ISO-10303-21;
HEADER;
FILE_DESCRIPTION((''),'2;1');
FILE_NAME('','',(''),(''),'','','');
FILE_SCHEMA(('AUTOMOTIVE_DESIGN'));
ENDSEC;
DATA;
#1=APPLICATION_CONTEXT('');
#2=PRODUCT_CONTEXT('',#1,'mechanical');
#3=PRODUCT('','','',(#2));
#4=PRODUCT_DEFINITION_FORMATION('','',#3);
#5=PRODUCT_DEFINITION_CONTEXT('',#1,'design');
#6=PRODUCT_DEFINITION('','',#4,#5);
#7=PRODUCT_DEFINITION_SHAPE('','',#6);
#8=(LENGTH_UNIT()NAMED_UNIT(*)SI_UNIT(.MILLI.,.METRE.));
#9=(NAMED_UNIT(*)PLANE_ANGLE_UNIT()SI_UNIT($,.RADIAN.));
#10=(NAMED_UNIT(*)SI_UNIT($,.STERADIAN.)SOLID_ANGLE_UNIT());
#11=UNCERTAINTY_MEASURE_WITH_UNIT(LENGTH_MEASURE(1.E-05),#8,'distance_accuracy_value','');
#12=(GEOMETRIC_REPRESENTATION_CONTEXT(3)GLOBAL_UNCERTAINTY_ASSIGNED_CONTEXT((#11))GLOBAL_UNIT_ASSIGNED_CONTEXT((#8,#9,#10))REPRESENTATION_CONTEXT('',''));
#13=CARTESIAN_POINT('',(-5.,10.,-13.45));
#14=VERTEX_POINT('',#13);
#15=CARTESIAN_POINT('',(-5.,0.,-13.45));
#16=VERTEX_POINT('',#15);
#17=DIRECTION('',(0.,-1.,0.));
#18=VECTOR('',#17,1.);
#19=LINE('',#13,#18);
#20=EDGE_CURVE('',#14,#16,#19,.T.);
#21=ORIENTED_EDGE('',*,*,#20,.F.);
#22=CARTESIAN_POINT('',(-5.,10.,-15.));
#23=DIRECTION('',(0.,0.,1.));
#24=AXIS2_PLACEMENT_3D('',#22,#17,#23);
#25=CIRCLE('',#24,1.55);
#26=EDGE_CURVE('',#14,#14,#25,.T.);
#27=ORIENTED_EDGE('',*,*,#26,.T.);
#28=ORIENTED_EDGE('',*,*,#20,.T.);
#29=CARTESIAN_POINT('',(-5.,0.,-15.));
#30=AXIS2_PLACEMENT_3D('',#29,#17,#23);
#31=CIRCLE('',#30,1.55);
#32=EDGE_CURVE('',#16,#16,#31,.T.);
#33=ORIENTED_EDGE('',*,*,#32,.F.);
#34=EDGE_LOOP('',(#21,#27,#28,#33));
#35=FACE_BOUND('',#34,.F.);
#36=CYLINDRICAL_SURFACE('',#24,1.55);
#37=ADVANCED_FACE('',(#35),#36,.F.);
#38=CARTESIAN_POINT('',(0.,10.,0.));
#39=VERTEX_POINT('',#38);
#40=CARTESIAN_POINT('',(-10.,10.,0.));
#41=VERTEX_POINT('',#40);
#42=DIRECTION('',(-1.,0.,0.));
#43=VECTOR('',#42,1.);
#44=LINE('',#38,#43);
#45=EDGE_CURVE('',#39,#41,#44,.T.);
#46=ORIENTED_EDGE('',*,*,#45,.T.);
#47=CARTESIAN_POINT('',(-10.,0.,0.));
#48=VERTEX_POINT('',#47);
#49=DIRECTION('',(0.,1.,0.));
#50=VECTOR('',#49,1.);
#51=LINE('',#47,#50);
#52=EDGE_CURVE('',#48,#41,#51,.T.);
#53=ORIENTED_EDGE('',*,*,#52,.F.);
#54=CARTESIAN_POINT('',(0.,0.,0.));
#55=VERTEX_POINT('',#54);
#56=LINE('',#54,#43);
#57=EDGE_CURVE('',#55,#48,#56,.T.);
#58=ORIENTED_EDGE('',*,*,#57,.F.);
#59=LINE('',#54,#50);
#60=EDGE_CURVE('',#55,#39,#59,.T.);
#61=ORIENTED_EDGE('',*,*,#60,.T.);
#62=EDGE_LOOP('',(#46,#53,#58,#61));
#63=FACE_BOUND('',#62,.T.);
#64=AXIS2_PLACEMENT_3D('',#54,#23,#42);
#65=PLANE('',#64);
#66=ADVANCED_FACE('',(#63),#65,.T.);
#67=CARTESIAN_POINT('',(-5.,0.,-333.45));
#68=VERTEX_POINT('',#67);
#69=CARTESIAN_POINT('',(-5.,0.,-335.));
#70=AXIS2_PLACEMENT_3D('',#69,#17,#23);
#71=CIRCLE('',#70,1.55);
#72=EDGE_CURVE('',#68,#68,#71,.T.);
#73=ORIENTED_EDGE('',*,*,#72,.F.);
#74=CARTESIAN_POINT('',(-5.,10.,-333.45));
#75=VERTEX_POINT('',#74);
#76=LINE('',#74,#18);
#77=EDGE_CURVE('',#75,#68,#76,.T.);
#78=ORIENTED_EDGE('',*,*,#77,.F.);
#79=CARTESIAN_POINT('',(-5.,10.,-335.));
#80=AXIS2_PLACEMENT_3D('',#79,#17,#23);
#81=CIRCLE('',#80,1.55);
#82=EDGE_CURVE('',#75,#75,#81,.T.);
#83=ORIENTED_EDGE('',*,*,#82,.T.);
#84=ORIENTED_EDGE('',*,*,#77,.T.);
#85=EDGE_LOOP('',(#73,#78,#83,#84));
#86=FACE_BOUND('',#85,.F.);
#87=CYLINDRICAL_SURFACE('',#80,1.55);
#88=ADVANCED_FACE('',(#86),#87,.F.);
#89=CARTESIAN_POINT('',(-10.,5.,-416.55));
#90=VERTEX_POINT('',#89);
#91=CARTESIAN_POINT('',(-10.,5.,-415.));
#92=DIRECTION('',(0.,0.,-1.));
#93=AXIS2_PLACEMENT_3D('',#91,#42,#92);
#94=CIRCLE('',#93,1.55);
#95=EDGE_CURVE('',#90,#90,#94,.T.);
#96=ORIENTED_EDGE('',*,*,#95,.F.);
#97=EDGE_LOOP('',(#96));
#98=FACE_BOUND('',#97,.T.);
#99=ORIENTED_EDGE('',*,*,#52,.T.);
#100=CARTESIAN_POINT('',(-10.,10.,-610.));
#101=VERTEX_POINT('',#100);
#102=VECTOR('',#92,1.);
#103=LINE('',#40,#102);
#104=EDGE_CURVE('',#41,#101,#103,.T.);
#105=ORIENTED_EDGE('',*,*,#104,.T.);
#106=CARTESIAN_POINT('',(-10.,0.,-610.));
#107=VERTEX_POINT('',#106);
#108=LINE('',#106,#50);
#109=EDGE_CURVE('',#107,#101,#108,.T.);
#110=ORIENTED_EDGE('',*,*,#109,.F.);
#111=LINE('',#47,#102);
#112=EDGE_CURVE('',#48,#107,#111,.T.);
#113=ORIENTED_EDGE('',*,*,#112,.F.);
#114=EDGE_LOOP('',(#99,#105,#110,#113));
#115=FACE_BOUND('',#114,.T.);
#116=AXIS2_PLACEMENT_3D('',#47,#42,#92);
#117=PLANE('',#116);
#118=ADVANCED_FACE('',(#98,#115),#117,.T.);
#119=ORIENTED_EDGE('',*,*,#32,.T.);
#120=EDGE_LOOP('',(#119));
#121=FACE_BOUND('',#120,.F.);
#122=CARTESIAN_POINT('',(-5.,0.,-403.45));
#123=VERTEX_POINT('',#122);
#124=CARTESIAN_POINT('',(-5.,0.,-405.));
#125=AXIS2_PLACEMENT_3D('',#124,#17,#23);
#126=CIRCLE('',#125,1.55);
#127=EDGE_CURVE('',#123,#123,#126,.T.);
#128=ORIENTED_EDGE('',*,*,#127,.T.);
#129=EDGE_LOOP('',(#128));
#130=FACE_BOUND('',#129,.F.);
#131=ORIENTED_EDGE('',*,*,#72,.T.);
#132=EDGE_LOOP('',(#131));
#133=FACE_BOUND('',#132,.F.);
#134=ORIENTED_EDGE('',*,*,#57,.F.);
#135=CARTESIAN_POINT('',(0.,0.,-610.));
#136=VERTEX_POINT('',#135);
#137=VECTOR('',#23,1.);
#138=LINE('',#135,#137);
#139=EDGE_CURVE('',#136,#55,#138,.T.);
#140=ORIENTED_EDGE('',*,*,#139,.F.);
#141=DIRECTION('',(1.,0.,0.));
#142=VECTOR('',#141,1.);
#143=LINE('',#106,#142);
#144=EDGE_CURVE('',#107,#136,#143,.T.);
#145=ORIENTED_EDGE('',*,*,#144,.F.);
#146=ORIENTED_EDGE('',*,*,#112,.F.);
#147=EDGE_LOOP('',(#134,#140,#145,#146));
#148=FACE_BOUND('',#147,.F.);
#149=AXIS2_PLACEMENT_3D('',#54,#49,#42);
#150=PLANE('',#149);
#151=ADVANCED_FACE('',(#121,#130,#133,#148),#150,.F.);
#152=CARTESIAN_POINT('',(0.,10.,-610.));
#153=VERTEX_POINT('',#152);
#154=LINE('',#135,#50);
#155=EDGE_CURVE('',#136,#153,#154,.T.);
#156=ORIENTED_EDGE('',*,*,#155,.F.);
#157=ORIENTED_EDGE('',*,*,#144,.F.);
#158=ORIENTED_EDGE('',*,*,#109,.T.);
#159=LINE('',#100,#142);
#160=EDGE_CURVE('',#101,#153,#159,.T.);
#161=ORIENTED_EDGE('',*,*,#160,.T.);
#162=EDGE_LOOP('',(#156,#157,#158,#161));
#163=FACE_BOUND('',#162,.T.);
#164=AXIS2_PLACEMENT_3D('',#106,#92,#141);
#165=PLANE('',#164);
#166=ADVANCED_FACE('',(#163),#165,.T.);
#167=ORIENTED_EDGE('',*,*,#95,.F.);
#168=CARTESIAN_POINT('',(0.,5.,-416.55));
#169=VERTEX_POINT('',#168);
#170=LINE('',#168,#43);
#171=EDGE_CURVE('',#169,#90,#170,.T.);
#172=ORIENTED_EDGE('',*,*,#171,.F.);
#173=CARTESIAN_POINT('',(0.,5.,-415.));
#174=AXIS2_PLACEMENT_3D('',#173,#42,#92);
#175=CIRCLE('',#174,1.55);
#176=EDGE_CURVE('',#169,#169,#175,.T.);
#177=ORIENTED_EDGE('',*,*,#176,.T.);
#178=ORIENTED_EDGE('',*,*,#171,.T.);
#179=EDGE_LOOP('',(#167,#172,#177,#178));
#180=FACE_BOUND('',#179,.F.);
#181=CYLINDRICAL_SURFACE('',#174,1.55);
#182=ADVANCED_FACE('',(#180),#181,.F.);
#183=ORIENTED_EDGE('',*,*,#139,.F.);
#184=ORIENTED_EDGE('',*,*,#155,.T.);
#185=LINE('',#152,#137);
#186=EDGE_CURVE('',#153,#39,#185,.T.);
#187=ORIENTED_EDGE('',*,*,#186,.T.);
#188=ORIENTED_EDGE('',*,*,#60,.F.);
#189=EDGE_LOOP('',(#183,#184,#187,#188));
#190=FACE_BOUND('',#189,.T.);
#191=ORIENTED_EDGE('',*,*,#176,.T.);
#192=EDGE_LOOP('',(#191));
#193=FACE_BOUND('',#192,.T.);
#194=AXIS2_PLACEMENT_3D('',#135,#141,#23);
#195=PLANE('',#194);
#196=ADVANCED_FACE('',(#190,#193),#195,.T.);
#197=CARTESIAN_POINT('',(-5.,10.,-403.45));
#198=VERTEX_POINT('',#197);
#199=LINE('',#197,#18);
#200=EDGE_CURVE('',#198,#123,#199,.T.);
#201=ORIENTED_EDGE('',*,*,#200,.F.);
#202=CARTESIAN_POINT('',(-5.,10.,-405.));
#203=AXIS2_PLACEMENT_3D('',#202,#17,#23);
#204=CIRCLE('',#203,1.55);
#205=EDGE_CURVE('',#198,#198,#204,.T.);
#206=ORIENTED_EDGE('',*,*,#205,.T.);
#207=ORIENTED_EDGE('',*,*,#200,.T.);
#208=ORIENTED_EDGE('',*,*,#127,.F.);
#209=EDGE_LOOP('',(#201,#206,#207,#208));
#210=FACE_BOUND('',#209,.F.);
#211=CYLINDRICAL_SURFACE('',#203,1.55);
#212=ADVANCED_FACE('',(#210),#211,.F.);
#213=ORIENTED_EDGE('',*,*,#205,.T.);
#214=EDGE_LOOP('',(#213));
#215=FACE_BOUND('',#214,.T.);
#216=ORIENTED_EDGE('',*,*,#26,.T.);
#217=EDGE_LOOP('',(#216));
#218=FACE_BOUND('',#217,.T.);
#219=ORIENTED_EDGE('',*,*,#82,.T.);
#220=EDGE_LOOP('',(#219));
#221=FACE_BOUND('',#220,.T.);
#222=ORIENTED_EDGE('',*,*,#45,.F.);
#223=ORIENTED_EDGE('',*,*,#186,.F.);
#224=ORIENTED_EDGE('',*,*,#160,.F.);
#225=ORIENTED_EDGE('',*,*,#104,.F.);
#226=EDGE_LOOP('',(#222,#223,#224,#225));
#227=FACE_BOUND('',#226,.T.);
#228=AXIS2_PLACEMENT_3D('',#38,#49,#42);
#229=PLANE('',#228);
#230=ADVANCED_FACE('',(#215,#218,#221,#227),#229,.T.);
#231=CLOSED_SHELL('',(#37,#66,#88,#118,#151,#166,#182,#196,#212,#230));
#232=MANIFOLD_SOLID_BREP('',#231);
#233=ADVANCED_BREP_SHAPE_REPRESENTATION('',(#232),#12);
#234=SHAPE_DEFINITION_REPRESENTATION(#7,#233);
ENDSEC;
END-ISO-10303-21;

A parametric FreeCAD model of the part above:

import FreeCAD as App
import Part
import Sketcher

V = App.Vector


def add_polygon(sketch, points):
    """Adds a closed chain of lines whose ends are joined by coincident constraints."""
    first, n = sketch.GeometryCount, len(points)
    for a, b in zip(points, points[1:] + points[:1]):
        sketch.addGeometry(Part.LineSegment(App.Vector(*a, 0), App.Vector(*b, 0)), False)
    for i in range(n):
        sketch.addConstraint(Sketcher.Constraint("Coincident", first + i, 2, first + (i + 1) % n, 1))

doc = App.newDocument("Part")
params = doc.addObject("Spreadsheet::Sheet", "Params")
for row, (alias, value) in enumerate([
    ("sketch1_width", "10 mm"),
    ("sketch1_height", "610 mm"),
    ("pad1_length", "10 mm"),
    ("sketch2_diameter", "3.1 mm"),
    ("hole_diameter", "3.1 mm"),
    ("sketch3_diameter", "3.1 mm"),
    ("hole2_diameter", "3.1 mm"),
    ("sketch4_diameter", "3.1 mm"),
    ("hole3_diameter", "3.1 mm"),
], start=1):
    params.set(f"A{row}", alias)
    params.set(f"B{row}", "=" + value)
    params.setAlias(f"B{row}", alias)

body = doc.addObject("PartDesign::Body", "Body")

# Sketch on XZ plane
sketch1 = doc.addObject("Sketcher::SketchObject", "Sketch")
body.addObject(sketch1)
sketch1.AttachmentSupport = (doc.XZ_Plane, [""])
sketch1.MapMode = "FlatFace"
add_polygon(sketch1, [(-10, 0), (0, 0), (0, -610), (-10, -610)])  # lines 0-3
sketch1.addConstraint(Sketcher.Constraint("Horizontal", 0))
sketch1.addConstraint(Sketcher.Constraint("Vertical", 1))
sketch1.addConstraint(Sketcher.Constraint("Horizontal", 2))
sketch1.addConstraint(Sketcher.Constraint("Vertical", 3))
sketch1.addConstraint(Sketcher.Constraint("Coincident", 0, 2, -1, 1))
sketch1.addConstraint(Sketcher.Constraint("DistanceX", 0, 1, 0, 2, 10.0))
sketch1.addConstraint(Sketcher.Constraint("DistanceY", 1, 2, 1, 1, 610.0))
sketch1.setExpression("Constraints[9]", "Params.sketch1_width")
sketch1.setExpression("Constraints[10]", "Params.sketch1_height")
pad1 = doc.addObject("PartDesign::Pad", "Pad")
body.addObject(pad1)
pad1.Profile = sketch1
pad1.setExpression("Length", "Params.pad1_length")
pad1.Reversed = True

# Sketch on XZ plane
sketch2 = doc.addObject("Sketcher::SketchObject", "Sketch001")
body.addObject(sketch2)
sketch2.AttachmentSupport = (doc.XZ_Plane, [""])
sketch2.MapMode = "FlatFace"
sketch2.AttachmentOffset = App.Placement(V(0, 0, -10), App.Rotation())
sketch2.addGeometry(Part.Circle(V(-5, -405, 0), V(0, 0, 1), 1.55), False)
sketch2.addConstraint(Sketcher.Constraint("Diameter", 0, 3.1))
sketch2.addConstraint(Sketcher.Constraint("DistanceX", 0, 3, -1, 1, 5.0))
sketch2.addConstraint(Sketcher.Constraint("DistanceY", 0, 3, -1, 1, 405.0))
sketch2.setExpression("Constraints[0]", "Params.sketch2_diameter")
doc.recompute()
hole = doc.addObject("PartDesign::Hole", "Hole")
body.addObject(hole)
hole.Profile = sketch2
hole.ThreadType = "None"
hole.setExpression("Diameter", "Params.hole_diameter")
hole.DepthType = "ThroughAll"
hole.Reversed = True

# Sketch on YZ plane
sketch3 = doc.addObject("Sketcher::SketchObject", "Sketch002")
body.addObject(sketch3)
sketch3.AttachmentSupport = (doc.YZ_Plane, [""])
sketch3.MapMode = "FlatFace"
sketch3.addGeometry(Part.Circle(V(5, -415, 0), V(0, 0, 1), 1.55), False)
sketch3.addConstraint(Sketcher.Constraint("Diameter", 0, 3.1))
sketch3.addConstraint(Sketcher.Constraint("DistanceX", -1, 1, 0, 3, 5.0))
sketch3.addConstraint(Sketcher.Constraint("DistanceY", 0, 3, -1, 1, 415.0))
sketch3.setExpression("Constraints[0]", "Params.sketch3_diameter")
doc.recompute()
hole2 = doc.addObject("PartDesign::Hole", "Hole001")
body.addObject(hole2)
hole2.Profile = sketch3
hole2.ThreadType = "None"
hole2.setExpression("Diameter", "Params.hole2_diameter")
hole2.DepthType = "ThroughAll"

# Sketch on XZ plane
sketch4 = doc.addObject("Sketcher::SketchObject", "Sketch003")
body.addObject(sketch4)
sketch4.AttachmentSupport = (doc.XZ_Plane, [""])
sketch4.MapMode = "FlatFace"
sketch4.AttachmentOffset = App.Placement(V(0, 0, -10), App.Rotation())
sketch4.addGeometry(Part.Circle(V(-5, -15, 0), V(0, 0, 1), 1.55), False)
sketch4.addGeometry(Part.Circle(V(-5, -335, 0), V(0, 0, 1), 1.55), False)
sketch4.addConstraint(Sketcher.Constraint("Equal", 0, 1))
sketch4.addConstraint(Sketcher.Constraint("Vertical", 0, 3, 1, 3))
sketch4.addConstraint(Sketcher.Constraint("Diameter", 0, 3.1))
sketch4.addConstraint(Sketcher.Constraint("DistanceX", 0, 3, -1, 1, 5.0))
sketch4.addConstraint(Sketcher.Constraint("DistanceY", 0, 3, -1, 1, 15.0))
sketch4.addConstraint(Sketcher.Constraint("DistanceY", 1, 3, -1, 1, 335.0))
sketch4.setExpression("Constraints[2]", "Params.sketch4_diameter")
doc.recompute()
hole3 = doc.addObject("PartDesign::Hole", "Hole002")
body.addObject(hole3)
hole3.Profile = sketch4
hole3.ThreadType = "None"
hole3.setExpression("Diameter", "Params.hole3_diameter")
hole3.DepthType = "ThroughAll"
hole3.Reversed = True

doc.recompute()
